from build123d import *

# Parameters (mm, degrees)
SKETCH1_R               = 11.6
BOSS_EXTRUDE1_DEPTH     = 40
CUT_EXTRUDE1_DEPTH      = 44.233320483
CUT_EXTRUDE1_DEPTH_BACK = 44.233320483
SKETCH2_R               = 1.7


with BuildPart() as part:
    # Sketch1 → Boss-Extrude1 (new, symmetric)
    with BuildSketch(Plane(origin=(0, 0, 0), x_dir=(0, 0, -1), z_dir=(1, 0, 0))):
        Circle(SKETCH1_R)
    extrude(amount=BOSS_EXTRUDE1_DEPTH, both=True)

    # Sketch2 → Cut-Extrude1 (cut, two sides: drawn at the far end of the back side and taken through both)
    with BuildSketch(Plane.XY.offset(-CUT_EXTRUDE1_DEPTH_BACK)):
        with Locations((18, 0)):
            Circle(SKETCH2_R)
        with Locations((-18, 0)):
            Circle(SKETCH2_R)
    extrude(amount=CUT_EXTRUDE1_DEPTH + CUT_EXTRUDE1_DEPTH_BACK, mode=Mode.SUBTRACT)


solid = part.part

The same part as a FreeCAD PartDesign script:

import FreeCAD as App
import Part
import Sketcher

doc = App.newDocument("Part")
body = doc.addObject("PartDesign::Body", "Body")

# Sketch on YZ plane
sketch1 = doc.addObject("Sketcher::SketchObject", "Sketch")
body.addObject(sketch1)
sketch1.AttachmentSupport = (doc.YZ_Plane, [""])
sketch1.MapMode = "FlatFace"
sketch1.addGeometry(Part.Circle(App.Vector(0, 0, 0), App.Vector(0, 0, 1), 11.6), False)
sketch1.addConstraint([
    Sketcher.Constraint("Coincident", 0, 3, -1, 1),
    Sketcher.Constraint("Diameter", 0, 23.2),
])
pad1 = doc.addObject("PartDesign::Pad", "Pad")
body.addObject(pad1)
pad1.Profile = sketch1
pad1.Length = 80
pad1.Midplane = True

# Sketch on XY plane
sketch2 = doc.addObject("Sketcher::SketchObject", "Sketch001")
body.addObject(sketch2)
sketch2.AttachmentSupport = (doc.XY_Plane, [""])
sketch2.MapMode = "FlatFace"
sketch2.addGeometry([
    Part.Circle(App.Vector(18, 0, 0), App.Vector(0, 0, 1), 1.7),
    Part.Circle(App.Vector(-18, 0, 0), App.Vector(0, 0, 1), 1.7),
], False)
sketch2.addConstraint([
    Sketcher.Constraint("Equal", 0, 1),
    Sketcher.Constraint("Symmetric", 0, 3, 1, 3, -1, 1),
    Sketcher.Constraint("PointOnObject", 0, 3, -1),
    Sketcher.Constraint("Diameter", 0, 3.4),
    Sketcher.Constraint("DistanceX", -1, 1, 0, 3, 18.0),
])
pocket1 = doc.addObject("PartDesign::Pocket", "Pocket")
body.addObject(pocket1)
pocket1.Profile = sketch2
pocket1.Type = "ThroughAll"
pocket1.Midplane = True

doc.recompute()
